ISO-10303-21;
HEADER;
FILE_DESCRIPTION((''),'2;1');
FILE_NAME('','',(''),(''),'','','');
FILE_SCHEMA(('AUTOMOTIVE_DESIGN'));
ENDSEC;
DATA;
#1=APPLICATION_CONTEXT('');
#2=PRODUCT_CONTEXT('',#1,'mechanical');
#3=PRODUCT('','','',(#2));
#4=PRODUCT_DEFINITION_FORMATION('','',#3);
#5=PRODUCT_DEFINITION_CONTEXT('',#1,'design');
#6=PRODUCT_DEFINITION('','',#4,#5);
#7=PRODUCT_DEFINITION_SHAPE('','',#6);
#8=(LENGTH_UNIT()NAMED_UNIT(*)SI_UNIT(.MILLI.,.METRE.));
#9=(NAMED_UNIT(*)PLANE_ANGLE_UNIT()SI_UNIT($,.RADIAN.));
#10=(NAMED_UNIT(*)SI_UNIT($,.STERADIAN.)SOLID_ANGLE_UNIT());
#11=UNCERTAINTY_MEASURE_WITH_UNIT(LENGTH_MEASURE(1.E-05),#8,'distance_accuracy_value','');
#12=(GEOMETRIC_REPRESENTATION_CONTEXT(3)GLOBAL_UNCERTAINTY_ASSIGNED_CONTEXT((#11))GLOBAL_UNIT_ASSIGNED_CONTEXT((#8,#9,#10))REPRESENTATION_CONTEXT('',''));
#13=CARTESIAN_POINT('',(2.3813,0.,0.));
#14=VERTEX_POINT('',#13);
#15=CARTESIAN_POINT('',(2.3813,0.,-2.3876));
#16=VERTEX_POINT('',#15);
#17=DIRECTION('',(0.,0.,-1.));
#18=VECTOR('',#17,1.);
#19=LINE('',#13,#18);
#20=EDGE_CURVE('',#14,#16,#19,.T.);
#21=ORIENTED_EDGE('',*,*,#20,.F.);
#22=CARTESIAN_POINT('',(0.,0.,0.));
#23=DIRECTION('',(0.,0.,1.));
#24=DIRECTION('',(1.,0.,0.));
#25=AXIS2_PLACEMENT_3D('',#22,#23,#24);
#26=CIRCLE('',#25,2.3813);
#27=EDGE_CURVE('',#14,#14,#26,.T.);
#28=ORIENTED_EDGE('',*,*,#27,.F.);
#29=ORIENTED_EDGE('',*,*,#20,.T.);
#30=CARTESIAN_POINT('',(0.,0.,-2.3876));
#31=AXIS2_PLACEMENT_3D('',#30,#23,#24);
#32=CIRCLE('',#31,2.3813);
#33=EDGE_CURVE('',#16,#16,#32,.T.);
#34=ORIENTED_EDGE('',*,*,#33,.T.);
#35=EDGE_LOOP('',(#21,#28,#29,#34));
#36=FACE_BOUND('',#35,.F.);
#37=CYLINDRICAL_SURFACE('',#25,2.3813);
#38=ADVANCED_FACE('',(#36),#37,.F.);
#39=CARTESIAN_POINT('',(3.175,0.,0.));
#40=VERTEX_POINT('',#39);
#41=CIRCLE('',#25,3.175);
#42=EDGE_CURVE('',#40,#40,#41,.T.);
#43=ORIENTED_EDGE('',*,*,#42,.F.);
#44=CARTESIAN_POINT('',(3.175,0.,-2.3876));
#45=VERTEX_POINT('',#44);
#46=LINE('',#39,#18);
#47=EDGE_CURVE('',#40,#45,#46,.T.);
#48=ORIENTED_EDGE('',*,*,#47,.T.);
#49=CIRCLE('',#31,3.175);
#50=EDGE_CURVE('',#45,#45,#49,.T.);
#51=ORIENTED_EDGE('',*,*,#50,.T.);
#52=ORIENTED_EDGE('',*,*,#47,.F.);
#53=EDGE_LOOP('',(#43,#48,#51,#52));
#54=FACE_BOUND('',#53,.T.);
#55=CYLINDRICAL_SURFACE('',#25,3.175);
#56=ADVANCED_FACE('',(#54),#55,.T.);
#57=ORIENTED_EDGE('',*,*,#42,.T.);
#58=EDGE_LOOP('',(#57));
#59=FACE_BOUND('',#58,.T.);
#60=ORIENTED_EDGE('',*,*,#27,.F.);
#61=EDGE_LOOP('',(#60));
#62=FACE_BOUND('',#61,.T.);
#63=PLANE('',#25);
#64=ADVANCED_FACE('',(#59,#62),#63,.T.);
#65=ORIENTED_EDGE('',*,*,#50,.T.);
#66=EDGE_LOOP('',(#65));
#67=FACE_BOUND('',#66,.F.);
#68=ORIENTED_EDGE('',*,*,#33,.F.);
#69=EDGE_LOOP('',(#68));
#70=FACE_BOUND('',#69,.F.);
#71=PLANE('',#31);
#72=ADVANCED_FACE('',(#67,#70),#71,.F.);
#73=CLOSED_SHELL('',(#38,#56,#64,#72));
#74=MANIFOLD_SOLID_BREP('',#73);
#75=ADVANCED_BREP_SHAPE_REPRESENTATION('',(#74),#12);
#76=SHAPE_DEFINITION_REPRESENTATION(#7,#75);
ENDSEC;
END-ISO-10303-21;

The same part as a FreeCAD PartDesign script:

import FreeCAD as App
import Part
import Sketcher
from FreeCAD import Vector
Q = App.Units.Quantity

doc = App.newDocument("Part")
body = doc.addObject("PartDesign::Body", "Body")

# Sketch on XY plane
sketch1 = doc.addObject("Sketcher::SketchObject", "Sketch")
body.addObject(sketch1)
sketch1.AttachmentSupport = (doc.XY_Plane, [""])
sketch1.MapMode = "FlatFace"
sketch1.addGeometry(Part.Circle(Vector(0, 0, 0), Vector(0, 0, 1), 3.2), False)
sketch1.addConstraint([
    Sketcher.Constraint("Coincident", 0, 3, -1, 1),
    Sketcher.Constraint("Diameter", 0, Q("0.25 in")),
])
pad1 = doc.addObject("PartDesign::Pad", "Pad")
body.addObject(pad1)
pad1.Profile = sketch1
pad1.Length = Q("0.094 in")
pad1.Reversed = True

# Sketch on XY plane
sketch2 = doc.addObject("Sketcher::SketchObject", "Sketch001")
body.addObject(sketch2)
sketch2.AttachmentSupport = (doc.XY_Plane, [""])
sketch2.MapMode = "FlatFace"
sketch2.addGeometry(Part.Circle(Vector(0, 0, 0), Vector(0, 0, 1), 2.4), False)
sketch2.addConstraint([
    Sketcher.Constraint("Coincident", 0, 3, -1, 1),
    Sketcher.Constraint("Diameter", 0, Q("0.1875 in")),
])
pocket1 = doc.addObject("PartDesign::Pocket", "Pocket")
body.addObject(pocket1)
pocket1.Profile = sketch2
pocket1.Length = Q("0.125 in")

doc.recompute()
